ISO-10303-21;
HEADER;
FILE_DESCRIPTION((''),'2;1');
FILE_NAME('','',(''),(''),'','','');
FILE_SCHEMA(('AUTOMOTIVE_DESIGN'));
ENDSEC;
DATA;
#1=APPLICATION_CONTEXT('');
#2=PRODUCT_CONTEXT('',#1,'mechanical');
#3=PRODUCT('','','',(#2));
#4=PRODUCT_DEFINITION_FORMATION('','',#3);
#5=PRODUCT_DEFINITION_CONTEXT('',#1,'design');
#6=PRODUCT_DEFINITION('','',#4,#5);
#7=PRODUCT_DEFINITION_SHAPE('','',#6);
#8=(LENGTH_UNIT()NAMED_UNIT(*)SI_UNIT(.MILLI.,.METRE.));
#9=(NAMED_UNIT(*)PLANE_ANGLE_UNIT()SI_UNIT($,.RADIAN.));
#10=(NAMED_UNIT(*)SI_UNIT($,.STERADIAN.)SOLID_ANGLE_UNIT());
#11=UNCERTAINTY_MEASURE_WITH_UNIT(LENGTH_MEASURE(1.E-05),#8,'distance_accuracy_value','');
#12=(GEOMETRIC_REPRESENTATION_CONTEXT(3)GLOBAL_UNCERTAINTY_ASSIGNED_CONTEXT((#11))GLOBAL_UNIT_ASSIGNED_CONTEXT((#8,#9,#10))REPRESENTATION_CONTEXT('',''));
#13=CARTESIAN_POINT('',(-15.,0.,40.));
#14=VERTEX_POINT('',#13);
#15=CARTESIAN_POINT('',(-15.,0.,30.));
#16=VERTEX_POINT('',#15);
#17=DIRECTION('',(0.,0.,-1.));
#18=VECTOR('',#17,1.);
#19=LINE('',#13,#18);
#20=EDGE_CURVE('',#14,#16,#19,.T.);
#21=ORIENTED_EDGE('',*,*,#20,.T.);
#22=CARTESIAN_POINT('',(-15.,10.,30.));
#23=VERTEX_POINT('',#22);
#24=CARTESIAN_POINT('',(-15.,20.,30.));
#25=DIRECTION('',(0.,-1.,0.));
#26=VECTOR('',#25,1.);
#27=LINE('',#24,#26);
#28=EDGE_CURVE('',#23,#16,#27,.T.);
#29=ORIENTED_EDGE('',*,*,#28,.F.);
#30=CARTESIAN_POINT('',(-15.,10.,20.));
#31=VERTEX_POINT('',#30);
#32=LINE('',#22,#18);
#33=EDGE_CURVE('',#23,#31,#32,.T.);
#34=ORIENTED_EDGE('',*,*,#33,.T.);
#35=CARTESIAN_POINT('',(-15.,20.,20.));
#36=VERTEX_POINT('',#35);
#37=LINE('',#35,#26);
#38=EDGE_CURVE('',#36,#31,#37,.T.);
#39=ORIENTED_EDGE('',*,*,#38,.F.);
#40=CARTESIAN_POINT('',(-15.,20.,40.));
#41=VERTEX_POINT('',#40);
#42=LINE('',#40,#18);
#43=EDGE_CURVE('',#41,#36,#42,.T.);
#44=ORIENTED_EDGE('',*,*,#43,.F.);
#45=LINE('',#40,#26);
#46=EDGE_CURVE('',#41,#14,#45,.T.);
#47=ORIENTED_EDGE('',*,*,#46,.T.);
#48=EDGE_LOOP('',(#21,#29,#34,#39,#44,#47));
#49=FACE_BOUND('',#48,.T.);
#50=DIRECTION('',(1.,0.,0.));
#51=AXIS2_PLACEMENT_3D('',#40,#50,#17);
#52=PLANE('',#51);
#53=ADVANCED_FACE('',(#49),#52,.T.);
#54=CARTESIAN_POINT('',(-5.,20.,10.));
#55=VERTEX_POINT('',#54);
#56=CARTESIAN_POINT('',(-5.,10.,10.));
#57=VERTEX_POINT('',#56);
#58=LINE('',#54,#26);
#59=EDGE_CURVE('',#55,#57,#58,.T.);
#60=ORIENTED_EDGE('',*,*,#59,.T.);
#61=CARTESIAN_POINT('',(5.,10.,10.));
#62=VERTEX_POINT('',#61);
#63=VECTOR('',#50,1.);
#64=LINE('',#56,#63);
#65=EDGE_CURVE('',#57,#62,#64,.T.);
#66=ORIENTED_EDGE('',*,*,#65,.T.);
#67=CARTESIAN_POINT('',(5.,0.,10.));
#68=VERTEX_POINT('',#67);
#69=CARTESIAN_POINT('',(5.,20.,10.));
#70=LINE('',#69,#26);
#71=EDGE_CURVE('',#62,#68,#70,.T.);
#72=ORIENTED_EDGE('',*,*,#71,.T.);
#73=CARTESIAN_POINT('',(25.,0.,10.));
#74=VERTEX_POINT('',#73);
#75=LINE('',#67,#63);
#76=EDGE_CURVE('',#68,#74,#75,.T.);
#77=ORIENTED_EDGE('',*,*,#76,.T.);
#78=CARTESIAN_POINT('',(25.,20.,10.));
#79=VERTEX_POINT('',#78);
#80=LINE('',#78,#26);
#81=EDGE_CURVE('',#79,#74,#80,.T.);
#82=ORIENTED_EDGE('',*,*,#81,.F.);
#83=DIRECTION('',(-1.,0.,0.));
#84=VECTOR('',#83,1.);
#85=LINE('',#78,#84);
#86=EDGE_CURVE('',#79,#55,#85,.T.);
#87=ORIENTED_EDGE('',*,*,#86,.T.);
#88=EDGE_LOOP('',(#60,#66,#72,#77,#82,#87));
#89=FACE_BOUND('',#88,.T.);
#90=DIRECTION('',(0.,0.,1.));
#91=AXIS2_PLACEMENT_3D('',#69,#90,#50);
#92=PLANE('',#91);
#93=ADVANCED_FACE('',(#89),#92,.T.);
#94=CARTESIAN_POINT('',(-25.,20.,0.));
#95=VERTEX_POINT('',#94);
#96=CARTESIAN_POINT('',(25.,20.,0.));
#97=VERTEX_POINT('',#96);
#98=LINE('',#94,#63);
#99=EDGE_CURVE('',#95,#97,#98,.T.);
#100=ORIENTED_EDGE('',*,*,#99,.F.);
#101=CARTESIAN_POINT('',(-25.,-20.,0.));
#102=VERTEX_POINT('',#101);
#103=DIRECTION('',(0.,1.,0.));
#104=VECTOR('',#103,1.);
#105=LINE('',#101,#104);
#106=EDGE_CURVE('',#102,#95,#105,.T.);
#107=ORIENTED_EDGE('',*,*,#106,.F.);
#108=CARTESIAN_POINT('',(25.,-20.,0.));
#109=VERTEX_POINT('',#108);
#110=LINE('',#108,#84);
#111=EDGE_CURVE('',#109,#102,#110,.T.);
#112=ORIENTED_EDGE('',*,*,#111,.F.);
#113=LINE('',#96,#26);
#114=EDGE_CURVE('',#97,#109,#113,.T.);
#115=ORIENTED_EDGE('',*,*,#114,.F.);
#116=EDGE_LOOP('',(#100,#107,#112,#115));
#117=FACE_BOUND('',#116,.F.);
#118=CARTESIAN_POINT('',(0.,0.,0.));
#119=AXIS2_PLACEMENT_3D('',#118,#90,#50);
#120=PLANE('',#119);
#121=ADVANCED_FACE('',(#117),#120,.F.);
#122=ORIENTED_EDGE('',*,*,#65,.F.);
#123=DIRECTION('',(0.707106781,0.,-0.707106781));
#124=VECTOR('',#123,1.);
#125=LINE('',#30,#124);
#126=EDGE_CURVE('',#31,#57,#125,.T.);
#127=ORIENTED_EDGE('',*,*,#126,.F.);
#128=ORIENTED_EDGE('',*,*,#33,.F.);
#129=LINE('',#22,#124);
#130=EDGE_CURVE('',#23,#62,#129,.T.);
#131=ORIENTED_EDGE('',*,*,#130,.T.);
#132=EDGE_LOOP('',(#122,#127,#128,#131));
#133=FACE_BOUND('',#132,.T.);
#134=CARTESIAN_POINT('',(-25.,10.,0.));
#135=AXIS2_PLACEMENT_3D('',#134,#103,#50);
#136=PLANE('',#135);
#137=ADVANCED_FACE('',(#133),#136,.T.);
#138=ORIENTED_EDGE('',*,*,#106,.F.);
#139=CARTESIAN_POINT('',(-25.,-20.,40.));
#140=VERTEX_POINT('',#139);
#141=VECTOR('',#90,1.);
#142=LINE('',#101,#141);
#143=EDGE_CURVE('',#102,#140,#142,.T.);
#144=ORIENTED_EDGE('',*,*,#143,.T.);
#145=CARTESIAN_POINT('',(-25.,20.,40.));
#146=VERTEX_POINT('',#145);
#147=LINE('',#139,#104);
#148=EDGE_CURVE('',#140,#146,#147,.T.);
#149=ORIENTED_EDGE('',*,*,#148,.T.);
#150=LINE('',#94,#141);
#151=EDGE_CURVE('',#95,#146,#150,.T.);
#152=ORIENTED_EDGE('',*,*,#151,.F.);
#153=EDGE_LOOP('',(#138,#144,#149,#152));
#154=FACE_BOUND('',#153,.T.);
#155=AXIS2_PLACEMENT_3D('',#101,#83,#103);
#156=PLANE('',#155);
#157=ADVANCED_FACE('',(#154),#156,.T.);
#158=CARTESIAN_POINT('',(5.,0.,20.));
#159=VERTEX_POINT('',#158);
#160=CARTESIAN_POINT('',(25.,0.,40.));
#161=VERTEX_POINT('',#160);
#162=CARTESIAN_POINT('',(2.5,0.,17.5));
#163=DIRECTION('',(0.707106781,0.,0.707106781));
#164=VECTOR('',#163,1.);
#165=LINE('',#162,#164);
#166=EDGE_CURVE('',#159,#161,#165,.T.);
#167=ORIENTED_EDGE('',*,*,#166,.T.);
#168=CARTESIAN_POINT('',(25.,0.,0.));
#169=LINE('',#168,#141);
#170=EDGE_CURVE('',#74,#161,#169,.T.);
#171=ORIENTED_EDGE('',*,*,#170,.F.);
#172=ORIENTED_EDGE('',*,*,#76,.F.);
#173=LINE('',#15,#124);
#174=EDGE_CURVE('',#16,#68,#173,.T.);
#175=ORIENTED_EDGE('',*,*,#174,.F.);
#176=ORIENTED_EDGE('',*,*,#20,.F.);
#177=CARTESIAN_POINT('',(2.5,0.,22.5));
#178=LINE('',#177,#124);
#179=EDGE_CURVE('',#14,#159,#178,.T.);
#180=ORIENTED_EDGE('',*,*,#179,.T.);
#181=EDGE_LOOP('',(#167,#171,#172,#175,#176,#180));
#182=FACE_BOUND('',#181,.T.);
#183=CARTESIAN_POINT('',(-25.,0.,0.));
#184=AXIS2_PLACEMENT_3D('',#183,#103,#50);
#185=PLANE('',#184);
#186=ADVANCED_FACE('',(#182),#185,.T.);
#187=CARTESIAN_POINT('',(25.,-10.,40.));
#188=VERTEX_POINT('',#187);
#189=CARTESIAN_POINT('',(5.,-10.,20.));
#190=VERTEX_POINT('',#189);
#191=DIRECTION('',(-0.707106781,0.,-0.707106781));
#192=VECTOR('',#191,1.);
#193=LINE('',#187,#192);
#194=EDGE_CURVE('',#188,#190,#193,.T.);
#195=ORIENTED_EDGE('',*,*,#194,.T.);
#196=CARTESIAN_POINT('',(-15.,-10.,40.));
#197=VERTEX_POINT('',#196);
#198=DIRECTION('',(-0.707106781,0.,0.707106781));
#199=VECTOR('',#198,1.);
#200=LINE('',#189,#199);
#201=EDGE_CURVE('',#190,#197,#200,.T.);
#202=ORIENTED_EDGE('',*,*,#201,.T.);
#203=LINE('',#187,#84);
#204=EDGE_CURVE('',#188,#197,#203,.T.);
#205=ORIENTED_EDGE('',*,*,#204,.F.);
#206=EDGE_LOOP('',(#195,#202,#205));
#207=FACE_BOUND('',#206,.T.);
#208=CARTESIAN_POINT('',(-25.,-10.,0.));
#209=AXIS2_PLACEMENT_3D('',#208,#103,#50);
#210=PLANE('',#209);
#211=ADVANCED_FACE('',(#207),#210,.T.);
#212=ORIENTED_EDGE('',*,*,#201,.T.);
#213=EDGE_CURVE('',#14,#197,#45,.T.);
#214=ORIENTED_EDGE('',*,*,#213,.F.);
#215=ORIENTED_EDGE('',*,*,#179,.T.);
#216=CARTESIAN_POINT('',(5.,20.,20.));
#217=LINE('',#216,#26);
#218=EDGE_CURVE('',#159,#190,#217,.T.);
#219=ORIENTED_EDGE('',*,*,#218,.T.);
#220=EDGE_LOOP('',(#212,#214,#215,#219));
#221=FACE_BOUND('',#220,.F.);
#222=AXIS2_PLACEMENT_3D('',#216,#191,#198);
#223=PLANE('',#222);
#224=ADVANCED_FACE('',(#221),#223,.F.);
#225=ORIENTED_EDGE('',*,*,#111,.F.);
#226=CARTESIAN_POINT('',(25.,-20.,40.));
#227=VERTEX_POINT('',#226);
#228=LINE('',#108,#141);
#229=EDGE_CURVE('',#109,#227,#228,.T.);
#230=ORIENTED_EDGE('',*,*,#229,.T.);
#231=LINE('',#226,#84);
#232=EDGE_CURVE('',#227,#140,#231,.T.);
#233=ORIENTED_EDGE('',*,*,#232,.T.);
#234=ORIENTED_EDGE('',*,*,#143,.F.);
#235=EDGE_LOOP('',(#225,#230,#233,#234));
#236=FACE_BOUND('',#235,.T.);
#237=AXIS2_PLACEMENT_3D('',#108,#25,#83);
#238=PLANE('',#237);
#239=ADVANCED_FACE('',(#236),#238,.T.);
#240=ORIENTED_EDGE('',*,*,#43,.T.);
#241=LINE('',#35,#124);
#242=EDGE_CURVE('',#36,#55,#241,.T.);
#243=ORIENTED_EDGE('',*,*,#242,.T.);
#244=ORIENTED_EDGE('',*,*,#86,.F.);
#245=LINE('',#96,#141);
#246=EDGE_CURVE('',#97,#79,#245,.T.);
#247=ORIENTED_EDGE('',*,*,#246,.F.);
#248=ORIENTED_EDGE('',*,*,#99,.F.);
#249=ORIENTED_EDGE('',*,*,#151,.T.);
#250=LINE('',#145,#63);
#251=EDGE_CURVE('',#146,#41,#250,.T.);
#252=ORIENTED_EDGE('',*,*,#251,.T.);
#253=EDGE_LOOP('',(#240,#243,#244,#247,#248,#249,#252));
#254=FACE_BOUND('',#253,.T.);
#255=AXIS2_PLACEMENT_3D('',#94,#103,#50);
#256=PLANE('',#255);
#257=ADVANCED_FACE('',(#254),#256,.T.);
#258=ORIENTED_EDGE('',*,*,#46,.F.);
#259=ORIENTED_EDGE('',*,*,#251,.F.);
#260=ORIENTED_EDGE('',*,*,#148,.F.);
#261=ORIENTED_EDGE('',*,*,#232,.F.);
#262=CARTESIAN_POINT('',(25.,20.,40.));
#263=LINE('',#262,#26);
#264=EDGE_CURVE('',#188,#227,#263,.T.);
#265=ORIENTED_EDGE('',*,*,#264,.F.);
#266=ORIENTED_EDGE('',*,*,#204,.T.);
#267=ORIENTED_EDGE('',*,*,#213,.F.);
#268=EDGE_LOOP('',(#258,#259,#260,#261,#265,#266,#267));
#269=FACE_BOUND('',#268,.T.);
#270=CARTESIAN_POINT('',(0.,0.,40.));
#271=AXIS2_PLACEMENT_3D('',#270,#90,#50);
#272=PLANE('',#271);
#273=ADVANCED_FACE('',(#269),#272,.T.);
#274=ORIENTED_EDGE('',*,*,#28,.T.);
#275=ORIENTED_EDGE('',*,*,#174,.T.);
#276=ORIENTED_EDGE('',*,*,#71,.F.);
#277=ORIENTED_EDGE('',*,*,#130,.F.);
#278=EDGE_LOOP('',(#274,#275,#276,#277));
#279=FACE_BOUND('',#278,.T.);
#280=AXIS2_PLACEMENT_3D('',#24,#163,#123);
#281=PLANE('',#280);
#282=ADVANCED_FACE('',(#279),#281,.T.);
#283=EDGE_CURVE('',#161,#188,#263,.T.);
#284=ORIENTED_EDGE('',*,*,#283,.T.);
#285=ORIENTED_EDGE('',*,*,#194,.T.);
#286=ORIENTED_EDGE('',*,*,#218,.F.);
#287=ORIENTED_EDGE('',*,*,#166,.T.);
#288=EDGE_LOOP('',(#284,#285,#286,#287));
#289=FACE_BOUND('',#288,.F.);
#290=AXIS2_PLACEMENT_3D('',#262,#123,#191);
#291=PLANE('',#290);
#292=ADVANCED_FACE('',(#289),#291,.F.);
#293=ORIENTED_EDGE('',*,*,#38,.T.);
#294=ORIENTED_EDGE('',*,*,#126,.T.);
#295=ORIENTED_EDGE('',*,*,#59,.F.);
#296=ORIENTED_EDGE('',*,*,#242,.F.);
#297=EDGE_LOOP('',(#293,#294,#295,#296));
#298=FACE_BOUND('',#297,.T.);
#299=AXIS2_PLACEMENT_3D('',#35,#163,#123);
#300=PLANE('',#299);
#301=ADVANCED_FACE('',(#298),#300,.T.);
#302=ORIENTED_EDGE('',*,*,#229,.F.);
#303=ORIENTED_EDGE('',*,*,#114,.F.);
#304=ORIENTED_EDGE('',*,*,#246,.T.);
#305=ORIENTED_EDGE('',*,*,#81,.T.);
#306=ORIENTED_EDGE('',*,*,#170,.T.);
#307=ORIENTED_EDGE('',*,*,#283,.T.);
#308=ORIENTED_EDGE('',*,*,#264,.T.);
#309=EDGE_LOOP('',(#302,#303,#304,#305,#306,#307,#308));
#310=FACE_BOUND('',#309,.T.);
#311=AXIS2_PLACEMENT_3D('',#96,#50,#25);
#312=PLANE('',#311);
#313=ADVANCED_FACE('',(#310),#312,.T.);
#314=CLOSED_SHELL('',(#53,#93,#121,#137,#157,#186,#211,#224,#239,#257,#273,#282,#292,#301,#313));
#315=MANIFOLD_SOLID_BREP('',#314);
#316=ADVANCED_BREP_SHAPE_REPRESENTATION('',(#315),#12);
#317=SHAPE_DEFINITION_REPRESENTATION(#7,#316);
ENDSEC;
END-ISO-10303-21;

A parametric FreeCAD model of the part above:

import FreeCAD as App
import Part
import Sketcher
from FreeCAD import Vector
Q = App.Units.Quantity

doc = App.newDocument("Part")
body = doc.addObject("PartDesign::Body", "Body")

# Sketch on XY plane
sketch1 = doc.addObject("Sketcher::SketchObject", "Sketch")
body.addObject(sketch1)
sketch1.AttachmentSupport = (doc.XY_Plane, [""])
sketch1.MapMode = "FlatFace"
sketch1.addGeometry(Part.LineSegment(Vector(-25, -20, 0), Vector(25, -20, 0)), False)
sketch1.addGeometry(Part.LineSegment(Vector(25, -20, 0), Vector(25, 20, 0)), False)
sketch1.addGeometry(Part.LineSegment(Vector(25, 20, 0), Vector(-25, 20, 0)), False)
sketch1.addGeometry(Part.LineSegment(Vector(-25, 20, 0), Vector(-25, -20, 0)), False)
sketch1.addConstraint(Sketcher.Constraint("Coincident", 0, 2, 1, 1))
sketch1.addConstraint(Sketcher.Constraint("Coincident", 1, 2, 2, 1))
sketch1.addConstraint(Sketcher.Constraint("Coincident", 2, 2, 3, 1))
sketch1.addConstraint(Sketcher.Constraint("Coincident", 3, 2, 0, 1))
sketch1.addConstraint(Sketcher.Constraint("Horizontal", 0))
sketch1.addConstraint(Sketcher.Constraint("Vertical", 1))
sketch1.addConstraint(Sketcher.Constraint("Horizontal", 2))
sketch1.addConstraint(Sketcher.Constraint("Vertical", 3))
sketch1.addConstraint(Sketcher.Constraint("Symmetric", 0, 2, 2, 2, -1, 1))
sketch1.addConstraint(Sketcher.Constraint("DistanceX", 0, 1, 0, 2, Q("50 mm")))
sketch1.addConstraint(Sketcher.Constraint("DistanceY", 1, 1, 1, 2, Q("40 mm")))
pad1 = doc.addObject("PartDesign::Pad", "Pad")
body.addObject(pad1)
pad1.Profile = sketch1
pad1.Length = 40

# Sketch on XZ plane
sketch2 = doc.addObject("Sketcher::SketchObject", "Sketch001")
body.addObject(sketch2)
sketch2.AttachmentSupport = (doc.XZ_Plane, [""])
sketch2.MapMode = "FlatFace"
sketch2.AttachmentOffset = App.Placement(Vector(0, 0, -20), App.Rotation())
sketch2.addGeometry(Part.LineSegment(Vector(-15, 40, 0), Vector(25, 40, 0)), False)
sketch2.addGeometry(Part.LineSegment(Vector(25, 40, 0), Vector(5, 20, 0)), False)
sketch2.addGeometry(Part.LineSegment(Vector(5, 20, 0), Vector(-15, 40, 0)), False)
sketch2.addConstraint(Sketcher.Constraint("Coincident", 0, 2, 1, 1))
sketch2.addConstraint(Sketcher.Constraint("Coincident", 1, 2, 2, 1))
sketch2.addConstraint(Sketcher.Constraint("Coincident", 2, 2, 0, 1))
sketch2.addConstraint(Sketcher.Constraint("Horizontal", 0))
sketch2.addConstraint(Sketcher.Constraint("Perpendicular", 1, 2))
sketch2.addConstraint(Sketcher.Constraint("Equal", 1, 2))
sketch2.addConstraint(Sketcher.Constraint("DistanceY", -1, 1, 1, 2, Q("20 mm")))
sketch2.addConstraint(Sketcher.Constraint("DistanceX", 1, 2, 0, 2, Q("20 mm")))
sketch2.addConstraint(Sketcher.Constraint("DistanceX", -1, 1, 0, 2, Q("25 mm")))
pocket1 = doc.addObject("PartDesign::Pocket", "Pocket")
body.addObject(pocket1)
pocket1.Profile = sketch2
pocket1.Length = 30
pocket1.Reversed = True

# Sketch on XZ plane
sketch3 = doc.addObject("Sketcher::SketchObject", "Sketch002")
body.addObject(sketch3)
sketch3.AttachmentSupport = (doc.XZ_Plane, [""])
sketch3.MapMode = "FlatFace"
sketch3.AttachmentOffset = App.Placement(Vector(0, 0, -20), App.Rotation())
sketch3.addGeometry(Part.LineSegment(Vector(-15, 30, 0), Vector(-15, 40, 0)), False)
sketch3.addGeometry(Part.LineSegment(Vector(-15, 40, 0), Vector(25, 40, 0)), False)
sketch3.addGeometry(Part.LineSegment(Vector(25, 40, 0), Vector(25, 10, 0)), False)
sketch3.addGeometry(Part.LineSegment(Vector(25, 10, 0), Vector(5, 10, 0)), False)
sketch3.addGeometry(Part.LineSegment(Vector(5, 10, 0), Vector(-15, 30, 0)), False)
sketch3.addConstraint(Sketcher.Constraint("Coincident", 0, 2, 1, 1))
sketch3.addConstraint(Sketcher.Constraint("Coincident", 1, 2, 2, 1))
sketch3.addConstraint(Sketcher.Constraint("Coincident", 2, 2, 3, 1))
sketch3.addConstraint(Sketcher.Constraint("Coincident", 3, 2, 4, 1))
sketch3.addConstraint(Sketcher.Constraint("Coincident", 4, 2, 0, 1))
sketch3.addConstraint(Sketcher.Constraint("Vertical", 0))
sketch3.addConstraint(Sketcher.Constraint("Horizontal", 1))
sketch3.addConstraint(Sketcher.Constraint("Vertical", 2))
sketch3.addConstraint(Sketcher.Constraint("Horizontal", 3))
sketch3.addConstraint(Sketcher.Constraint("DistanceX", 3, 2, 3, 1, Q("20 mm")))
sketch3.addConstraint(Sketcher.Constraint("DistanceY", 0, 1, 0, 2, Q("10 mm")))
sketch3.addConstraint(Sketcher.Constraint("DistanceY", -1, 1, 2, 2, Q("10 mm")))
sketch3.addConstraint(Sketcher.Constraint("DistanceX", 0, 2, 3, 2, Q("20 mm")))
sketch3.addConstraint(Sketcher.Constraint("DistanceY", 3, 2, 4, 2, Q("20 mm")))
sketch3.addConstraint(Sketcher.Constraint("DistanceX", 0, 2, -1, 1, Q("15 mm")))
pocket2 = doc.addObject("PartDesign::Pocket", "Pocket001")
body.addObject(pocket2)
pocket2.Profile = sketch3
pocket2.Length = 20
pocket2.Reversed = True

# Sketch on XZ plane
sketch4 = doc.addObject("Sketcher::SketchObject", "Sketch003")
body.addObject(sketch4)
sketch4.AttachmentSupport = (doc.XZ_Plane, [""])
sketch4.MapMode = "FlatFace"
sketch4.AttachmentOffset = App.Placement(Vector(0, 0, -20), App.Rotation())
sketch4.addGeometry(Part.LineSegment(Vector(-15, 20, 0), Vector(-15, 30, 0)), False)
sketch4.addGeometry(Part.LineSegment(Vector(-15, 30, 0), Vector(5, 10, 0)), False)
sketch4.addGeometry(Part.LineSegment(Vector(5, 10, 0), Vector(-5, 10, 0)), False)
sketch4.addGeometry(Part.LineSegment(Vector(-5, 10, 0), Vector(-15, 20, 0)), False)
sketch4.addConstraint(Sketcher.Constraint("Coincident", 0, 2, 1, 1))
sketch4.addConstraint(Sketcher.Constraint("Coincident", 1, 2, 2, 1))
sketch4.addConstraint(Sketcher.Constraint("Coincident", 2, 2, 3, 1))
sketch4.addConstraint(Sketcher.Constraint("Coincident", 3, 2, 0, 1))
sketch4.addConstraint(Sketcher.Constraint("Vertical", 0))
sketch4.addConstraint(Sketcher.Constraint("Horizontal", 2))
sketch4.addConstraint(Sketcher.Constraint("Parallel", 1, 3))
sketch4.addConstraint(Sketcher.Constraint("Equal", 2, 0))
sketch4.addConstraint(Sketcher.Constraint("DistanceX", 2, 2, 2, 1, Q("10 mm")))
sketch4.addConstraint(Sketcher.Constraint("DistanceY", -1, 1, 1, 2, Q("10 mm")))
sketch4.addConstraint(Sketcher.Constraint("DistanceX", 0, 2, 2, 2, Q("10 mm")))
sketch4.addConstraint(Sketcher.Constraint("DistanceX", 0, 2, -1, 1, Q("15 mm")))
pocket3 = doc.addObject("PartDesign::Pocket", "Pocket002")
body.addObject(pocket3)
pocket3.Profile = sketch4
pocket3.Length = 10
pocket3.Reversed = True

doc.recompute()
